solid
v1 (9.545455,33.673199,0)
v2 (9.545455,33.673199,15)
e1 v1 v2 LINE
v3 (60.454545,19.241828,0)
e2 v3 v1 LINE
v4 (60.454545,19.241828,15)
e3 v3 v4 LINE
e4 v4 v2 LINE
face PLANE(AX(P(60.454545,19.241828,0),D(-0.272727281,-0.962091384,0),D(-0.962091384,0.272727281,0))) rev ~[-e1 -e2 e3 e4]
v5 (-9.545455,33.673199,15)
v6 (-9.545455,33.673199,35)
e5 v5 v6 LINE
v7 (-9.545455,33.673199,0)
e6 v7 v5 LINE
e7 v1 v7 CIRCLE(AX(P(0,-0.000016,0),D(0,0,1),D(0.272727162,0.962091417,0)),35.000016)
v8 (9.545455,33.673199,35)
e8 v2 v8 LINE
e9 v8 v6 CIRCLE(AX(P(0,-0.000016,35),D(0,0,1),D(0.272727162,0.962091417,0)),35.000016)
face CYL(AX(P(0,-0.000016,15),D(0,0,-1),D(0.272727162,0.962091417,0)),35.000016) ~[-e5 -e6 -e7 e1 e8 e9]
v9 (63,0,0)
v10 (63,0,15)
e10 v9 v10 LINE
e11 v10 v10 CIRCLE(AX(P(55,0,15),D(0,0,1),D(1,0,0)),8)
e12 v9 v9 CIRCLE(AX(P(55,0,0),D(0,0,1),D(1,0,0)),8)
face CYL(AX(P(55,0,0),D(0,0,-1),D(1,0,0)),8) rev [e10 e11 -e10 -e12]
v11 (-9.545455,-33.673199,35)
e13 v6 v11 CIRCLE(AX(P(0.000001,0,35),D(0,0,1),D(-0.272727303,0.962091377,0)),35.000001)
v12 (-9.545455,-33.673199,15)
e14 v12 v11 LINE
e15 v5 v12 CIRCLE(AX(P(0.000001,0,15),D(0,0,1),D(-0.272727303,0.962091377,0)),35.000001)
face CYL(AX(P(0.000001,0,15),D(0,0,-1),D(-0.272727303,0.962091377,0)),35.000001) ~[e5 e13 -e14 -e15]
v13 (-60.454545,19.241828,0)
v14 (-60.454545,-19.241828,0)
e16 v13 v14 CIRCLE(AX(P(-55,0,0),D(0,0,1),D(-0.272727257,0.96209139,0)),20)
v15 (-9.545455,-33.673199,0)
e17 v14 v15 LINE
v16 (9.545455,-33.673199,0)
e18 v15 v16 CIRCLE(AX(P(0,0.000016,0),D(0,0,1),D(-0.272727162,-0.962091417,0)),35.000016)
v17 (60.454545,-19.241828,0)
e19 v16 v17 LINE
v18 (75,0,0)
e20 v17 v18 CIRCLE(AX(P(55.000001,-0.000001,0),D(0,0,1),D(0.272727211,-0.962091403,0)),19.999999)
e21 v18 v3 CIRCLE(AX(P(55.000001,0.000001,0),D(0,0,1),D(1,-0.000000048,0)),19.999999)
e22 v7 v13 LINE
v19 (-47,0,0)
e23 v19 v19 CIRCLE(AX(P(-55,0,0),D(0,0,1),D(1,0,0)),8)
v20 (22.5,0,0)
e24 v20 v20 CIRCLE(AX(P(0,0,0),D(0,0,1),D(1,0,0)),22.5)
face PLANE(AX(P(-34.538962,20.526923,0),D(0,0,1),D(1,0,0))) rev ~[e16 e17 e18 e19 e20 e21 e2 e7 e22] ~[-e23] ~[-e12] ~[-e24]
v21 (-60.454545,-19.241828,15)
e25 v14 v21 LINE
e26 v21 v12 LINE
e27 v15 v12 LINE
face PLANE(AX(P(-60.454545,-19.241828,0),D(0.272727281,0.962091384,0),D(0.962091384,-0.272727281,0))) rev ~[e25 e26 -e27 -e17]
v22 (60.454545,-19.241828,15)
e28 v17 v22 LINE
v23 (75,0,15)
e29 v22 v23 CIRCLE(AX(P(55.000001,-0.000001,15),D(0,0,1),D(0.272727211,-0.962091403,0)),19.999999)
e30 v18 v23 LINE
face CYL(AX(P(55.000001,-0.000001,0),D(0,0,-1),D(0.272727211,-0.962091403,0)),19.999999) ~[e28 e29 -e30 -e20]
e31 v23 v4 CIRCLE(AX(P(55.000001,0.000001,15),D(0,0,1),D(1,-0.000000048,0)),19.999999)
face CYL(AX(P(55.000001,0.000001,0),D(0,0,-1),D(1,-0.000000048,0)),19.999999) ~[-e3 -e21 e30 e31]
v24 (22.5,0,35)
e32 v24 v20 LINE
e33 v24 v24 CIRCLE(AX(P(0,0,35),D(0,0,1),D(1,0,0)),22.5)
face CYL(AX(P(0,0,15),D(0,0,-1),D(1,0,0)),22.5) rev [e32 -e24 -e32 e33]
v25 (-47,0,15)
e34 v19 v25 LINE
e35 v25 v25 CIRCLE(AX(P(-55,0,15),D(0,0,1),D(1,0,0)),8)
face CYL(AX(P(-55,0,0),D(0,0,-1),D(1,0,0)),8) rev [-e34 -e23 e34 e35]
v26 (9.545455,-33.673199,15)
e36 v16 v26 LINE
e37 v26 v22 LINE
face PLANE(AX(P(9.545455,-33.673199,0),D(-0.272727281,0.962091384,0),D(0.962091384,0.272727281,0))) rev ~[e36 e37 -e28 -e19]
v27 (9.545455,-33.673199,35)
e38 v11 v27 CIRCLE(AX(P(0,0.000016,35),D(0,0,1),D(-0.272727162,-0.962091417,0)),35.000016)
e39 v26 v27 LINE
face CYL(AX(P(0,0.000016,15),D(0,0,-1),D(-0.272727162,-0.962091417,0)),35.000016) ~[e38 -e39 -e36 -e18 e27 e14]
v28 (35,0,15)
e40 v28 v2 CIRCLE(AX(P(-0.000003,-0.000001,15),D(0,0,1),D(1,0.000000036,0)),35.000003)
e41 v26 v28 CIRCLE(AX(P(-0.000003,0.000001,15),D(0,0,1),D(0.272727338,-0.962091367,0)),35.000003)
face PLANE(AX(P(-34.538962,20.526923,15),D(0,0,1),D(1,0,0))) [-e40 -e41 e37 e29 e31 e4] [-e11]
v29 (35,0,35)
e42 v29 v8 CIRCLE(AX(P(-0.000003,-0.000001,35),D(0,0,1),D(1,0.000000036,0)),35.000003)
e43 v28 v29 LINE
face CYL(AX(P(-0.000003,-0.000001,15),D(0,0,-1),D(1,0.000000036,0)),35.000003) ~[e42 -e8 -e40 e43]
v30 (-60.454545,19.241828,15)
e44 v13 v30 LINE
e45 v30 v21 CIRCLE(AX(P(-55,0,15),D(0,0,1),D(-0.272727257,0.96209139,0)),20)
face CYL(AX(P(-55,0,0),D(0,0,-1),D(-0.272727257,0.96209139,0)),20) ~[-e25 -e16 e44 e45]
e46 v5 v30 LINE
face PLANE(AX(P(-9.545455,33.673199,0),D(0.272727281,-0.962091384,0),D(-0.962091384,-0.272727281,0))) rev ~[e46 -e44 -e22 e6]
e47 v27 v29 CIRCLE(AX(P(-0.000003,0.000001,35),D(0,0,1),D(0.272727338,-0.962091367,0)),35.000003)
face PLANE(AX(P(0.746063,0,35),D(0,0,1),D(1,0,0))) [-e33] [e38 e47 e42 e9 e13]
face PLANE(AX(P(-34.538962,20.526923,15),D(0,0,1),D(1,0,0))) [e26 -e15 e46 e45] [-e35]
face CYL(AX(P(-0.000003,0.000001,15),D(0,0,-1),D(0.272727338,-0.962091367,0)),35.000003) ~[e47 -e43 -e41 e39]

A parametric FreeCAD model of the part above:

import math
import FreeCAD as App
import Part
import Sketcher
from FreeCAD import Vector

doc = App.newDocument("Part")
body = doc.addObject("PartDesign::Body", "Body")

# Sketch on XY plane
sketch1 = body.newObject("Sketcher::SketchObject", "Sketch")
sketch1.AttachmentSupport = (doc.getObject("XY_Plane"), [""])
sketch1.MapMode = "FlatFace"
sketch1.addGeometry([
    Part.LineSegment(Vector(-9.545455, 33.673199, 0), Vector(-60.454545, 19.241828, 0)),  # 0
    Part.ArcOfCircle(Part.Circle(Vector(-55, 0, 0), Vector(0, 0, 1), 20), math.radians(105.826619), math.radians(254.173381)),  # 1
    Part.LineSegment(Vector(-60.454545, -19.241828, 0), Vector(-9.545455, -33.673199, 0)),  # 2
    Part.ArcOfCircle(Part.Circle(Vector(0, 0.000016, 0), Vector(0, 0, 1), 35.000016), math.radians(-105.826614), math.radians(-74.173386)),  # 3
    Part.LineSegment(Vector(9.545455, -33.673199, 0), Vector(60.454545, -19.241828, 0)),  # 4
    Part.ArcOfCircle(Part.Circle(Vector(55.000001, -0.000001, 0), Vector(0, 0, 1), 19.999999), math.radians(-74.173384), math.radians(0.000003)),  # 5
    Part.ArcOfCircle(Part.Circle(Vector(55.000001, 0.000001, 0), Vector(0, 0, 1), 19.999999), math.radians(-0.000003), math.radians(74.173384)),  # 6
    Part.LineSegment(Vector(60.454545, 19.241828, 0), Vector(9.545455, 33.673199, 0)),  # 7
    Part.ArcOfCircle(Part.Circle(Vector(0, -0.000016, 0), Vector(0, 0, 1), 35.000016), math.radians(74.173386), math.radians(105.826614)),  # 8
    Part.Circle(Vector(-55, 0, 0), Vector(0, 0, 1), 8),  # 9
    Part.Circle(Vector(0, 0, 0), Vector(0, 0, 1), 22.5),  # 10
    Part.Circle(Vector(55, 0, 0), Vector(0, 0, 1), 8),  # 11
], False)
sketch1.addConstraint([
    Sketcher.Constraint("Tangent", 0, 2, 1, 1),
    Sketcher.Constraint("Tangent", 1, 2, 2, 1),
    Sketcher.Constraint("Tangent", 2, 2, 3, 1),
    Sketcher.Constraint("Tangent", 3, 2, 4, 1),
    Sketcher.Constraint("Tangent", 4, 2, 5, 1),
    Sketcher.Constraint("Tangent", 5, 2, 6, 1),
    Sketcher.Constraint("Tangent", 6, 2, 7, 1),
    Sketcher.Constraint("Tangent", 7, 2, 8, 1),
    Sketcher.Constraint("Tangent", 8, 2, 0, 1),
    Sketcher.Constraint("Coincident", 10, 3, -1, 1),
    Sketcher.Constraint("Coincident", 9, 3, 1, 3),
    Sketcher.Constraint("Coincident", 11, 3, 5, 3),
    Sketcher.Constraint("Equal", 1, 5),
    Sketcher.Constraint("Equal", 5, 6),
    Sketcher.Constraint("Equal", 3, 8),
    Sketcher.Constraint("Equal", 9, 11),
    Sketcher.Constraint("Symmetric", 1, 3, 5, 3, -1, 1),
    Sketcher.Constraint("Symmetric", 3, 3, 8, 3, -1, 1),
    Sketcher.Constraint("Symmetric", 2, 2, 3, 2, -2),
    Sketcher.Constraint("PointOnObject", 5, 2, -1),
    Sketcher.Constraint("Diameter", 9, 16.0),
    Sketcher.Constraint("Diameter", 10, 45.0),
    Sketcher.Constraint("Radius", 1, 20.0),
    Sketcher.Constraint("DistanceX", 1, 3, -1, 1, 55.0),
    Sketcher.Constraint("Radius", 3, 35.000016),
    Sketcher.Constraint("DistanceY", 2, 2, -1, 1, 33.673199),
])
pad1 = body.newObject("PartDesign::Pad", "Pad")
pad1.Profile = sketch1
pad1.Length = 15

# Sketch on XY plane
sketch2 = body.newObject("Sketcher::SketchObject", "Sketch001")
sketch2.AttachmentSupport = (doc.getObject("XY_Plane"), [""])
sketch2.MapMode = "FlatFace"
sketch2.AttachmentOffset = App.Placement(Vector(0, 0, 15), App.Rotation())
sketch2.addGeometry([
    Part.ArcOfCircle(Part.Circle(Vector(0, 0, 0), Vector(0, 0, 1), 35), math.radians(-74), math.radians(0)),  # 0
    Part.ArcOfCircle(Part.Circle(Vector(0, 0, 0), Vector(0, 0, 1), 35), math.radians(0), math.radians(74)),  # 1
    Part.ArcOfCircle(Part.Circle(Vector(0, 0, 0), Vector(0, 0, 1), 35), math.radians(74), math.radians(106)),  # 2
    Part.ArcOfCircle(Part.Circle(Vector(0, 0, 0), Vector(0, 0, 1), 35), math.radians(106), math.radians(254)),  # 3
    Part.ArcOfCircle(Part.Circle(Vector(0, 0, 0), Vector(0, 0, 1), 35), math.radians(-106), math.radians(-74)),  # 4
    Part.Circle(Vector(0, 0, 0), Vector(0, 0, 1), 22),  # 5
], False)
sketch2.addConstraint([
    Sketcher.Constraint("Tangent", 0, 2, 1, 1),
    Sketcher.Constraint("Tangent", 1, 2, 2, 1),
    Sketcher.Constraint("Tangent", 2, 2, 3, 1),
    Sketcher.Constraint("Tangent", 3, 2, 4, 1),
    Sketcher.Constraint("Tangent", 4, 2, 0, 1),
    Sketcher.Constraint("Coincident", 0, 3, -1, 1),
    Sketcher.Constraint("Coincident", 3, 3, -1, 1),
    Sketcher.Constraint("Coincident", 5, 3, -1, 1),
    Sketcher.Constraint("PointOnObject", 0, 2, -1),
    Sketcher.Constraint("Horizontal", 1, 2, 2, 2),
    Sketcher.Constraint("Horizontal", 3, 2, 4, 2),
    Sketcher.Constraint("Vertical", 2, 2, 3, 2),
    Sketcher.Constraint("Diameter", 5, 45.0),
    Sketcher.Constraint("Radius", 3, 35.000001),
    Sketcher.Constraint("DistanceY", -1, 1, 1, 2, 33.673199),
])
pad2 = body.newObject("PartDesign::Pad", "Pad001")
pad2.Profile = sketch2
pad2.Length = 20

doc.recompute()
